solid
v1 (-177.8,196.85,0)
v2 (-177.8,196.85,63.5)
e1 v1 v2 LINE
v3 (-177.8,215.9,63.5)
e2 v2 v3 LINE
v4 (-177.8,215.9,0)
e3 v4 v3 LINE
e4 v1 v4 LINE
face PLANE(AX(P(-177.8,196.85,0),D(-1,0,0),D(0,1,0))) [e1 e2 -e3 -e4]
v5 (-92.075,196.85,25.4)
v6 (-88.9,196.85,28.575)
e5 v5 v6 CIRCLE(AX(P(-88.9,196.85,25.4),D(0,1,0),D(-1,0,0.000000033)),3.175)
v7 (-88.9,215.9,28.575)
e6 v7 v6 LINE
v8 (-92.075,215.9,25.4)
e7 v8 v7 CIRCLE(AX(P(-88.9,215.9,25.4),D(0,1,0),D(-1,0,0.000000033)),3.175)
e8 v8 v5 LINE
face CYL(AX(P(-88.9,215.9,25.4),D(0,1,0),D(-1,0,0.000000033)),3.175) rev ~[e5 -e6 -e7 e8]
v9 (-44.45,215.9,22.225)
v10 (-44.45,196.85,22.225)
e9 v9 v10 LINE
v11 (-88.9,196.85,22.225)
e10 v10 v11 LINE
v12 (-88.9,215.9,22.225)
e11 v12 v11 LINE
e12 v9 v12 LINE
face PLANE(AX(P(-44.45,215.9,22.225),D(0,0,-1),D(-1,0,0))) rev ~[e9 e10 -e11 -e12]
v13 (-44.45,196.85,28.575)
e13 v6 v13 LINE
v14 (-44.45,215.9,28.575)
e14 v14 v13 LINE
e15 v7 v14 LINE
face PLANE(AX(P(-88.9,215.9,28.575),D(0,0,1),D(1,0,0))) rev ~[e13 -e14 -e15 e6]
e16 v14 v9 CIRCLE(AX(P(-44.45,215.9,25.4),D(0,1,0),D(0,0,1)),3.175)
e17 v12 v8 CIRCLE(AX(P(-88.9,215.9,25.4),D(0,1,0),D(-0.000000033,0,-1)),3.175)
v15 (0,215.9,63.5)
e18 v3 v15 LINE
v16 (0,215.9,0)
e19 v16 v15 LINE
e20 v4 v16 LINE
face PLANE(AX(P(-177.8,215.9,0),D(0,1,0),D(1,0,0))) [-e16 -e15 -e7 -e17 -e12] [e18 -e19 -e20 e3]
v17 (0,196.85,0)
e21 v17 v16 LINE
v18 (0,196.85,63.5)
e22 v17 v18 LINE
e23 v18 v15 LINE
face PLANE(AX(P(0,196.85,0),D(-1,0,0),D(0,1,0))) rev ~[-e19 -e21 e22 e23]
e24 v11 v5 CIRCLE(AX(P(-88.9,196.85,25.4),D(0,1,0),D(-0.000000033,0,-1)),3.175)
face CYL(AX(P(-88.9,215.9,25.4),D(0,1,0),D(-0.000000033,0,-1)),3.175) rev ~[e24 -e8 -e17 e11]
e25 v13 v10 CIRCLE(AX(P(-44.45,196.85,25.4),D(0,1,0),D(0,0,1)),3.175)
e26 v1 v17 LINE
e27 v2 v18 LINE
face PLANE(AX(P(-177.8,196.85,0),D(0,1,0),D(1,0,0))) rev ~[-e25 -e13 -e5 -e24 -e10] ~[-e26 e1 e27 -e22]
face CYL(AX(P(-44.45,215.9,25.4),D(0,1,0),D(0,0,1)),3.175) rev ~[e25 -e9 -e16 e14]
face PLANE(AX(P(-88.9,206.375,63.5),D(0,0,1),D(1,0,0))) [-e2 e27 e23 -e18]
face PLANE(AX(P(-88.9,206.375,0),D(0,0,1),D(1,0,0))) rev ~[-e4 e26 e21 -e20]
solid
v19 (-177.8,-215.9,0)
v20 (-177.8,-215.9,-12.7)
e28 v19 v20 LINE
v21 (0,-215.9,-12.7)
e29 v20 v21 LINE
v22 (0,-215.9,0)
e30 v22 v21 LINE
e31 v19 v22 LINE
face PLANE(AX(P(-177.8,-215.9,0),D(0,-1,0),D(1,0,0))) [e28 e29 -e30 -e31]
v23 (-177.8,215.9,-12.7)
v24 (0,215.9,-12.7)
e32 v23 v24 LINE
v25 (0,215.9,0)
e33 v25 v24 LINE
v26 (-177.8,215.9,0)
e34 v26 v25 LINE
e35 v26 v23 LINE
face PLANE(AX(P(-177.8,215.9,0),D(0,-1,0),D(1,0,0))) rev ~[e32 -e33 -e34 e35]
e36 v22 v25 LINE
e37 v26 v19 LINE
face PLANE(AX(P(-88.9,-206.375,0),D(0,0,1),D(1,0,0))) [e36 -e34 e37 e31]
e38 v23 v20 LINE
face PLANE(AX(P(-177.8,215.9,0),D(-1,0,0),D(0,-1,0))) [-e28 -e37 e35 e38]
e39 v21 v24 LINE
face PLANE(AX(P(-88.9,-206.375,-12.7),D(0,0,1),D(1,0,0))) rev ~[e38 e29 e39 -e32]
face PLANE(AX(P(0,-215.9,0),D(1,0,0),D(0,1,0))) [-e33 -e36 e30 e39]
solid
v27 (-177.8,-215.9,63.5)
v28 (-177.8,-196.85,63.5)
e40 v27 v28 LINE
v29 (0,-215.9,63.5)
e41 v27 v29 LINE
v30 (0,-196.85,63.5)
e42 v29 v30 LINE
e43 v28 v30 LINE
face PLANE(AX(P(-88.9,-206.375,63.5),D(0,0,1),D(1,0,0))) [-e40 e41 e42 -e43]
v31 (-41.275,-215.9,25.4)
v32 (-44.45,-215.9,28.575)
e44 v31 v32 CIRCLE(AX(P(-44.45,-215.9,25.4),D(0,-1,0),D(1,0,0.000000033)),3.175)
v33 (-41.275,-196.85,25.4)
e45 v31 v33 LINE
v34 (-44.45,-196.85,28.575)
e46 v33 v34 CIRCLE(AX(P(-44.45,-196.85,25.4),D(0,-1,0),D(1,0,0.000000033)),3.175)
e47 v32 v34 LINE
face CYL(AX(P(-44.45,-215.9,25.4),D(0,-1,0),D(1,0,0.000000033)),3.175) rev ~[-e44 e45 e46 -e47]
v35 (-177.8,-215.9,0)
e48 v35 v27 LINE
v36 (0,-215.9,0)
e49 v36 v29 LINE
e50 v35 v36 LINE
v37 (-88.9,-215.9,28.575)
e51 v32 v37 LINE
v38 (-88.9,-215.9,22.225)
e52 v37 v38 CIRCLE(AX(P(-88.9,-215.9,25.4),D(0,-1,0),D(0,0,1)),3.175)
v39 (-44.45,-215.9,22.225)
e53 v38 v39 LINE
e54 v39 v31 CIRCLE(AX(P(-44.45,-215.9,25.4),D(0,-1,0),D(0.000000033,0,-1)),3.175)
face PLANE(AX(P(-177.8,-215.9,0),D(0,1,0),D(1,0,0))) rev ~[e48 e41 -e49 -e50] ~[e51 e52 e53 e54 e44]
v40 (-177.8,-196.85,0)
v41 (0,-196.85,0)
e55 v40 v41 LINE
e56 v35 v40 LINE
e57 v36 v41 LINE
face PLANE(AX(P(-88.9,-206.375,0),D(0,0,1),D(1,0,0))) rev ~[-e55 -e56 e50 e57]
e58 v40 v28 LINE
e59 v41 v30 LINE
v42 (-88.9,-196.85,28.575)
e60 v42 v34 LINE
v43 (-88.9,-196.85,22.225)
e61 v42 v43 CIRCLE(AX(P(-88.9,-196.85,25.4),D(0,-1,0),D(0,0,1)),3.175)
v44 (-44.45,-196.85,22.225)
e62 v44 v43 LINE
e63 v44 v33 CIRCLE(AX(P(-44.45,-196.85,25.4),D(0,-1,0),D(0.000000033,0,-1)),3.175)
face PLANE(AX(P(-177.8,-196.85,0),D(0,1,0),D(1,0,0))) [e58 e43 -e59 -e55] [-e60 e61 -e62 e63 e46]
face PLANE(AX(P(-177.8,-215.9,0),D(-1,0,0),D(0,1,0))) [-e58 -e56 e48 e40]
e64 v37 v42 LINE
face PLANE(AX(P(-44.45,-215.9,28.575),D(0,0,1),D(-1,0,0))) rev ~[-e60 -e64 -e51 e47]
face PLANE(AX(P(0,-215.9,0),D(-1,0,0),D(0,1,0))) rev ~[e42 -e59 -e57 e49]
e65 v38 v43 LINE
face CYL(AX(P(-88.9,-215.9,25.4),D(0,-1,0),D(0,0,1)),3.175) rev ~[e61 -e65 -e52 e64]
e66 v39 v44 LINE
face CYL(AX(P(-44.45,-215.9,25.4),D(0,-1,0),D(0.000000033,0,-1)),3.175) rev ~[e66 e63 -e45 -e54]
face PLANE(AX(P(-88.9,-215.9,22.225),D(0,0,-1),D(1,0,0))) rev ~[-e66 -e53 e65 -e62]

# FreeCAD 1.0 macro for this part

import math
import FreeCAD as App
import Part
import Sketcher

V = App.Vector
Q = App.Units.Quantity


def add_polygon(sketch, points):
    """Adds a closed chain of lines whose ends are joined by coincident constraints."""
    first, n = sketch.GeometryCount, len(points)
    for a, b in zip(points, points[1:] + points[:1]):
        sketch.addGeometry(Part.LineSegment(App.Vector(*a, 0), App.Vector(*b, 0)), False)
    for i in range(n):
        sketch.addConstraint(Sketcher.Constraint("Coincident", first + i, 2, first + (i + 1) % n, 1))

doc = App.newDocument("Part")
body = doc.addObject("PartDesign::Body", "Body")

sketch1 = body.newObject("Sketcher::SketchObject", "Sketch")
sketch1.AttachmentSupport = (doc.getObject("XY_Plane"), [""])
sketch1.MapMode = "FlatFace"
add_polygon(sketch1, [(-178, -216), (0, -216), (0, 216), (-178, 216)])
sketch1.addConstraint([
    Sketcher.Constraint("Horizontal", 0),
    Sketcher.Constraint("Vertical", 1),
    Sketcher.Constraint("Horizontal", 2),
    Sketcher.Constraint("Vertical", 3),
    Sketcher.Constraint("Symmetric", 0, 2, 1, 2, -1, 1),
    Sketcher.Constraint("DistanceX", 0, 1, 0, 2, Q("7 in")),
    Sketcher.Constraint("DistanceY", 1, 1, 1, 2, Q("17 in")),
])
pad1 = body.newObject("PartDesign::Pad", "Pad")
pad1.Profile = sketch1
pad1.Length = Q("0.5 in")
pad1.Reversed = True
body2 = doc.addObject("PartDesign::Body", "Body001")

sketch2 = body2.newObject("Sketcher::SketchObject", "Sketch001")
sketch2.AttachmentSupport = (doc.getObject("XY_Plane001"), [""])
sketch2.MapMode = "FlatFace"
add_polygon(sketch2, [(-178, 216), (-178, 197), (0, 197), (0, 216)])
sketch2.addConstraint([
    Sketcher.Constraint("Vertical", 0),
    Sketcher.Constraint("Horizontal", 1),
    Sketcher.Constraint("Vertical", 2),
    Sketcher.Constraint("Horizontal", 3),
    Sketcher.Constraint("PointOnObject", 1, 2, -2),
    Sketcher.Constraint("DistanceX", 1, 1, 1, 2, Q("7 in")),
    Sketcher.Constraint("DistanceY", 0, 2, 0, 1, Q("0.75 in")),
    Sketcher.Constraint("DistanceY", -1, 1, 2, 2, Q("8.5 in")),
])
pad2 = body2.newObject("PartDesign::Pad", "Pad001")
pad2.Profile = sketch2
pad2.Length = Q("2.5 in")

sketch3 = body2.newObject("Sketcher::SketchObject", "Sketch002")
sketch3.AttachmentSupport = (doc.getObject("XZ_Plane001"), [""])
sketch3.MapMode = "FlatFace"
sketch3.AttachmentOffset = App.Placement(V(0, 0, -8.5 * 25.4), App.Rotation())
sketch3.addGeometry([
    Part.LineSegment(V(-88.9, 28.6, 0), V(-44.5, 28.6, 0)),
    Part.ArcOfCircle(Part.Circle(V(-44.5, 25.4, 0), V(0, 0, 1), 3.2), math.radians(-90), math.radians(90)),
    Part.LineSegment(V(-44.5, 22.2, 0), V(-88.9, 22.2, 0)),
    Part.ArcOfCircle(Part.Circle(V(-88.9, 25.4, 0), V(0, 0, 1), 3.2), math.radians(-180), math.radians(-90)),
    Part.ArcOfCircle(Part.Circle(V(-88.9, 25.4, 0), V(0, 0, 1), 3.2), math.radians(90), math.radians(180)),
], False)
sketch3.addConstraint([
    Sketcher.Constraint("Tangent", 0, 2, 1, 2),
    Sketcher.Constraint("Tangent", 1, 1, 2, 1),
    Sketcher.Constraint("Tangent", 2, 2, 3, 2),
    Sketcher.Constraint("Tangent", 3, 1, 4, 2),
    Sketcher.Constraint("Tangent", 4, 1, 0, 1),
    Sketcher.Constraint("Horizontal", 0),
    Sketcher.Constraint("Horizontal", 2),
    Sketcher.Constraint("Equal", 1, 3),
    Sketcher.Constraint("Horizontal", 4, 3, 3, 1),
    Sketcher.Constraint("DistanceY", -1, 1, 1, 3, Q("1 in")),
    Sketcher.Constraint("Radius", 1, Q("0.125 in")),
    Sketcher.Constraint("DistanceX", 0, 1, 0, 2, Q("1.75 in")),
    Sketcher.Constraint("DistanceX", 3, 3, -1, 1, Q("3.5 in")),
])
pocket1 = body2.newObject("PartDesign::Pocket", "Pocket")
pocket1.Profile = sketch3
pocket1.Length = Q("1 in")
pocket1.Reversed = True
body3 = doc.addObject("PartDesign::Body", "Body002")

sketch4 = body3.newObject("Sketcher::SketchObject", "Sketch003")
sketch4.AttachmentSupport = (doc.getObject("XY_Plane002"), [""])
sketch4.MapMode = "FlatFace"
add_polygon(sketch4, [(-178, -197), (-178, -216), (0, -216), (0, -197)])
sketch4.addConstraint([
    Sketcher.Constraint("Vertical", 0),
    Sketcher.Constraint("Horizontal", 1),
    Sketcher.Constraint("Vertical", 2),
    Sketcher.Constraint("Horizontal", 3),
    Sketcher.Constraint("PointOnObject", 1, 2, -2),
    Sketcher.Constraint("DistanceX", 1, 1, 1, 2, Q("7 in")),
    Sketcher.Constraint("DistanceY", 0, 2, 0, 1, Q("0.75 in")),
    Sketcher.Constraint("DistanceY", 0, 2, -1, 1, Q("8.5 in")),
])
pad3 = body3.newObject("PartDesign::Pad", "Pad002")
pad3.Profile = sketch4
pad3.Length = Q("2.5 in")

sketch5 = body3.newObject("Sketcher::SketchObject", "Sketch004")
sketch5.AttachmentSupport = (doc.getObject("XZ_Plane002"), [""])
sketch5.MapMode = "FlatFace"
sketch5.AttachmentOffset = App.Placement(V(0, 0, 8.5 * 25.4), App.Rotation())
sketch5.addGeometry([
    Part.ArcOfCircle(Part.Circle(V(-88.9, 25.4, 0), V(0, 0, 1), 3.2), math.radians(90), math.radians(270)),
    Part.LineSegment(V(-88.9, 22.2, 0), V(-44.5, 22.2, 0)),
    Part.ArcOfCircle(Part.Circle(V(-44.5, 25.4, 0), V(0, 0, 1), 3.2), math.radians(-90), math.radians(0)),
    Part.ArcOfCircle(Part.Circle(V(-44.5, 25.4, 0), V(0, 0, 1), 3.2), math.radians(0), math.radians(90)),
    Part.LineSegment(V(-44.5, 28.6, 0), V(-88.9, 28.6, 0)),
], False)
sketch5.addConstraint([
    Sketcher.Constraint("Tangent", 0, 2, 1, 1),
    Sketcher.Constraint("Tangent", 1, 2, 2, 1),
    Sketcher.Constraint("Tangent", 2, 2, 3, 1),
    Sketcher.Constraint("Tangent", 3, 2, 4, 1),
    Sketcher.Constraint("Tangent", 4, 2, 0, 1),
    Sketcher.Constraint("Horizontal", 1),
    Sketcher.Constraint("Horizontal", 4),
    Sketcher.Constraint("Equal", 0, 2),
    Sketcher.Constraint("Horizontal", 3, 3, 2, 2),
    Sketcher.Constraint("DistanceY", -1, 1, 0, 3, Q("1 in")),
    Sketcher.Constraint("Radius", 0, Q("0.125 in")),
    Sketcher.Constraint("DistanceX", 1, 1, 1, 2, Q("1.75 in")),
    Sketcher.Constraint("DistanceX", 0, 3, -1, 1, Q("3.5 in")),
])
pocket2 = body3.newObject("PartDesign::Pocket", "Pocket001")
pocket2.Profile = sketch5
pocket2.Length = Q("1 in")

doc.recompute()
